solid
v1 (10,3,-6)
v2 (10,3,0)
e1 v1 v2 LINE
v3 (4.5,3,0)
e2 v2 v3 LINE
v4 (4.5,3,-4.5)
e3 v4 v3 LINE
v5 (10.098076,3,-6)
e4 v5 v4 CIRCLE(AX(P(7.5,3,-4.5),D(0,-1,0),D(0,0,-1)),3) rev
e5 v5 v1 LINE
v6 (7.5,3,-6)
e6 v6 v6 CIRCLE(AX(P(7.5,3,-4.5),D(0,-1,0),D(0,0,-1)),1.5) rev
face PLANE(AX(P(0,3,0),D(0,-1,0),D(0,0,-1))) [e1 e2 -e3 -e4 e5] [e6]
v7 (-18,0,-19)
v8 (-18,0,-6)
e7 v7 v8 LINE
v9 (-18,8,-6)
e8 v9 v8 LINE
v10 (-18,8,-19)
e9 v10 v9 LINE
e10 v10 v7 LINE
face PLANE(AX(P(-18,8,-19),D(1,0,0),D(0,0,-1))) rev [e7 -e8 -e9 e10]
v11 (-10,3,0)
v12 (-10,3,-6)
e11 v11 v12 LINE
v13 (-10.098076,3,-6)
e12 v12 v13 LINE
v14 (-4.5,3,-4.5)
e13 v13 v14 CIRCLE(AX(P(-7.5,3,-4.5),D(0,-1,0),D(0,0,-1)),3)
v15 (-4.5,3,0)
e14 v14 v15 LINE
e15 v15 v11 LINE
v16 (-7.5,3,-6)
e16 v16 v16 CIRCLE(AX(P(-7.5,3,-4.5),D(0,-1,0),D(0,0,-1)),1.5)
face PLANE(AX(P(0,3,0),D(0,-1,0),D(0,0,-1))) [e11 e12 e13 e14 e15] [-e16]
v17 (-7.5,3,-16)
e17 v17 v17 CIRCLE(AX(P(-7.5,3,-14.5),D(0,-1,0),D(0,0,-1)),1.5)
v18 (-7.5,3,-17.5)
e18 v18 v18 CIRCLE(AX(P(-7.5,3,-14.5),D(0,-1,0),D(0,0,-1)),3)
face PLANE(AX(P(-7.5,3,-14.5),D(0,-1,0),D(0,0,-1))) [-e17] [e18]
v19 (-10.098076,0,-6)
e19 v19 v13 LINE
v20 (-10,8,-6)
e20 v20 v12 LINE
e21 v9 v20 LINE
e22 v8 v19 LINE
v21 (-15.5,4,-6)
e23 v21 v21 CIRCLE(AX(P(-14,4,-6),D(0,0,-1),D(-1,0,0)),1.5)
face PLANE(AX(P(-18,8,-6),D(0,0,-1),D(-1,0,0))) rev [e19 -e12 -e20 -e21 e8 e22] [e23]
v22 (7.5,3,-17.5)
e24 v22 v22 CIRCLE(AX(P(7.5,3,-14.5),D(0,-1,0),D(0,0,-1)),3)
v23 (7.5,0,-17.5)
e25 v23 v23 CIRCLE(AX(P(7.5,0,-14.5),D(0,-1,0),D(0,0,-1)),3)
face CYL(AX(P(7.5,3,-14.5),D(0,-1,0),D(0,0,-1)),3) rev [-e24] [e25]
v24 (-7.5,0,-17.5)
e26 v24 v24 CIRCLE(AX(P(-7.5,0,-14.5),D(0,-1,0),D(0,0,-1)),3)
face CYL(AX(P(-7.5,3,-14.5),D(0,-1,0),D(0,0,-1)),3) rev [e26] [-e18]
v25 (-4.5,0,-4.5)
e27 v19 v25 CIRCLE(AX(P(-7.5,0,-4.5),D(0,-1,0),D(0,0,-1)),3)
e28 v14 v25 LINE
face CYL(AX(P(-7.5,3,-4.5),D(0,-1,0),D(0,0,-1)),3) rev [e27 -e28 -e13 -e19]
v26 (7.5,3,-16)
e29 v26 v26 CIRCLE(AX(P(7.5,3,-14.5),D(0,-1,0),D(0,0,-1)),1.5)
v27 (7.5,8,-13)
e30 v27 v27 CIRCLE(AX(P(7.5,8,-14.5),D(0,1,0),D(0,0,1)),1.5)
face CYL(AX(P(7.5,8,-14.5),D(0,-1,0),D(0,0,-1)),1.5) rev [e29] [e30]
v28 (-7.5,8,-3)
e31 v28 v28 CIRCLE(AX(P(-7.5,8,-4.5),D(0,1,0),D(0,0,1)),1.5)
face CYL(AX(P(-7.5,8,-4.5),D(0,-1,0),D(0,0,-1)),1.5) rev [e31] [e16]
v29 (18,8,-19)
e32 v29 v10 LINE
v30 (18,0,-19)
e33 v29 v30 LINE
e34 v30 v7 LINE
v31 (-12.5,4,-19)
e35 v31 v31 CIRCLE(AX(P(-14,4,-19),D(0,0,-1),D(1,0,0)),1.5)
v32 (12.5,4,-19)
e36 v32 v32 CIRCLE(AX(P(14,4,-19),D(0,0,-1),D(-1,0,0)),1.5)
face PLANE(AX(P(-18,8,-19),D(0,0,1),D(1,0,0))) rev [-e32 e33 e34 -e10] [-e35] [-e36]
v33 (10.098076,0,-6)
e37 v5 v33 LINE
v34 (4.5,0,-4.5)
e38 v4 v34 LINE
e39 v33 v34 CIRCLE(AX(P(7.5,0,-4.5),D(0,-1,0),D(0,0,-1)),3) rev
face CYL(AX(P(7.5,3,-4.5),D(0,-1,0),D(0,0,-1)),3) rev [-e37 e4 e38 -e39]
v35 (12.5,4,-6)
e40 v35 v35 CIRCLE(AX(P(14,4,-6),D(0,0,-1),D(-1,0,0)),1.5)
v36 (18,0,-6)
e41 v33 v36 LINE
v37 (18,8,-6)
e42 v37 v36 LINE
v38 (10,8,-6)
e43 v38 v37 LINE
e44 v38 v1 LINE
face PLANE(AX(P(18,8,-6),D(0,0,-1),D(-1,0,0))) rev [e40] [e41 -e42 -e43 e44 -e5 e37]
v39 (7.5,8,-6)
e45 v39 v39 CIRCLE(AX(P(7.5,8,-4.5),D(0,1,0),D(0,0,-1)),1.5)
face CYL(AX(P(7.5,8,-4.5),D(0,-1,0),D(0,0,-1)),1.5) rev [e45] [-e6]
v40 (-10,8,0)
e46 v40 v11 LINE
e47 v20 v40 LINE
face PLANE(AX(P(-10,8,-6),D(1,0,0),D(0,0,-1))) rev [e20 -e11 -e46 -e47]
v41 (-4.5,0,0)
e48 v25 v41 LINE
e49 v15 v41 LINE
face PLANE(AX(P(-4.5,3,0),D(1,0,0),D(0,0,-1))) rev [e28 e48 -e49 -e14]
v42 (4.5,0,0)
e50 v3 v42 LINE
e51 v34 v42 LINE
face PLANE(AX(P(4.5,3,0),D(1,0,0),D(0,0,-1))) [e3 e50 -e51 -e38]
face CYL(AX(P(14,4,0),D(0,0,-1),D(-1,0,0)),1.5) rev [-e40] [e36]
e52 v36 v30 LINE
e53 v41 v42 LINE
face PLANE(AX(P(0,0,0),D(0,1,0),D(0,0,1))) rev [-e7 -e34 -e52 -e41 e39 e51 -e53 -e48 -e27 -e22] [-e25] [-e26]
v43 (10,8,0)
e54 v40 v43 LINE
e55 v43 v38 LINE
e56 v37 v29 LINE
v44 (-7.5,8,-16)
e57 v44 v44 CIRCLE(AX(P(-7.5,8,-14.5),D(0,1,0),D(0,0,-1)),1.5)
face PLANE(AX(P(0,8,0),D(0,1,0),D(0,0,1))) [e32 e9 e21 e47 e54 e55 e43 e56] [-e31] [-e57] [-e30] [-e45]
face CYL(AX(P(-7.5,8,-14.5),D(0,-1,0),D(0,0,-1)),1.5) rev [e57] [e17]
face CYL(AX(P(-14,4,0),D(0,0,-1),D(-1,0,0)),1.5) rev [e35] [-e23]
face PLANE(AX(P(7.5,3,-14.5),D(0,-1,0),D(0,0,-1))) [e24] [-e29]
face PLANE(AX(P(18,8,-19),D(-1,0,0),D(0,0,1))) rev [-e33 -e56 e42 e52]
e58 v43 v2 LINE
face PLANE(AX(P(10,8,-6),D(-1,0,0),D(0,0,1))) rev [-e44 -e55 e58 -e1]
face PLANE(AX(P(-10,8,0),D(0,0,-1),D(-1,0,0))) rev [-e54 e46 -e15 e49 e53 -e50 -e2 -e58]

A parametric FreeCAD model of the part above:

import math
import FreeCAD as App
import Part
import Sketcher
from FreeCAD import Vector


def add_polygon(sketch, points):
    """Adds a closed chain of lines whose ends are joined by coincident constraints."""
    first, n = sketch.GeometryCount, len(points)
    for a, b in zip(points, points[1:] + points[:1]):
        sketch.addGeometry(Part.LineSegment(App.Vector(*a, 0), App.Vector(*b, 0)), False)
    for i in range(n):
        sketch.addConstraint(Sketcher.Constraint("Coincident", first + i, 2, first + (i + 1) % n, 1))

doc = App.newDocument("Part")
params = doc.addObject("Spreadsheet::Sheet", "Params")
for row, (alias, value) in enumerate([
    ("sketch1_diameter", "3 mm"),
    ("sketch1_width", "36 mm"),
    ("sketch1_width2", "8 mm"),
    ("sketch1_height", "13 mm"),
    ("sketch1_height2", "6 mm"),
    ("pad1_length", "8 mm"),
    ("sketch2_diameter", "3 mm"),
    ("sketch3_diameter", "6 mm"),
    ("pocket2_length", "3 mm"),
    ("sketch4_diameter", "3 mm"),
    ("sketch4_radius", "3 mm"),
    ("sketch4_height", "6 mm"),
    ("sketch4_width", "5.5 mm"),
    ("sketch4_height2", "4.5 mm"),
    ("pocket3_length", "3 mm"),
], start=1):
    params.set(f"A{row}", alias)
    params.set(f"B{row}", "=" + value)
    params.setAlias(f"B{row}", alias)

body = doc.addObject("PartDesign::Body", "Body")

sketch1 = body.newObject("Sketcher::SketchObject", "Sketch")
sketch1.AttachmentSupport = (doc.getObject("XZ_Plane"), [""])
sketch1.MapMode = "FlatFace"
add_polygon(sketch1, [(18, -19), (-18, -19), (-18, -6), (-10, -6), (-10, 0), (10, 0), (10, -6), (18, -6)])
sketch1.addGeometry(Part.Circle(Vector(7.5, -4.5, 0), Vector(0, 0, 1), 1.5), False)
sketch1.addGeometry(Part.Circle(Vector(-7.5, -4.5, 0), Vector(0, 0, 1), 1.5), False)
sketch1.addGeometry(Part.Circle(Vector(7.5, -14.5, 0), Vector(0, 0, 1), 1.5), False)
sketch1.addGeometry(Part.Circle(Vector(-7.5, -14.5, 0), Vector(0, 0, 1), 1.5), False)
sketch1.addConstraint([
    Sketcher.Constraint("Horizontal", 0),
    Sketcher.Constraint("Vertical", 1),
    Sketcher.Constraint("Horizontal", 2),
    Sketcher.Constraint("Vertical", 3),
    Sketcher.Constraint("Horizontal", 4),
    Sketcher.Constraint("Vertical", 5),
    Sketcher.Constraint("Horizontal", 6),
    Sketcher.Constraint("Vertical", 7),
    Sketcher.Constraint("Equal", 8, 9),
    Sketcher.Constraint("Equal", 9, 10),
    Sketcher.Constraint("Equal", 10, 11),
    Sketcher.Constraint("Symmetric", 3, 2, 4, 2, -1, 1),
    Sketcher.Constraint("Symmetric", 8, 3, 9, 3, -2),
    Sketcher.Constraint("Symmetric", 10, 3, 11, 3, -2),
    Sketcher.Constraint("Symmetric", 1, 2, 6, 2, -2),
    Sketcher.Constraint("Vertical", 8, 3, 10, 3),
    Sketcher.Constraint("Diameter", 8, 3.0),
    Sketcher.Constraint("DistanceX", 0, 2, 0, 1, 36.0),
    Sketcher.Constraint("DistanceX", 2, 1, 2, 2, 8.0),
    Sketcher.Constraint("DistanceY", 1, 1, 1, 2, 13.0),
    Sketcher.Constraint("DistanceY", 3, 1, 3, 2, 6.0),
    Sketcher.Constraint("DistanceX", 9, 3, 8, 3, 15.0),
    Sketcher.Constraint("DistanceY", 10, 3, 8, 3, 10.0),
    Sketcher.Constraint("DistanceY", 8, 3, -1, 1, 4.5),
])
sketch1.setExpression("Constraints[24]", "Params.sketch1_diameter")
sketch1.setExpression("Constraints[25]", "Params.sketch1_width")
sketch1.setExpression("Constraints[26]", "Params.sketch1_width2")
sketch1.setExpression("Constraints[27]", "Params.sketch1_height")
sketch1.setExpression("Constraints[28]", "Params.sketch1_height2")
pad1 = body.newObject("PartDesign::Pad", "Pad")
pad1.Profile = sketch1
pad1.setExpression("Length", "Params.pad1_length")
pad1.Reversed = True

sketch2 = body.newObject("Sketcher::SketchObject", "Sketch001")
sketch2.AttachmentSupport = (doc.getObject("XY_Plane"), [""])
sketch2.MapMode = "FlatFace"
sketch2.AttachmentOffset = App.Placement(Vector(0, 0, -19), App.Rotation())
sketch2.addGeometry([
    Part.Circle(Vector(14, 4, 0), Vector(0, 0, 1), 1.5),
    Part.Circle(Vector(-14, 4, 0), Vector(0, 0, 1), 1.5),
], False)
sketch2.addConstraint([
    Sketcher.Constraint("Equal", 0, 1),
    Sketcher.Constraint("Symmetric", 0, 3, 1, 3, -2),
    Sketcher.Constraint("Diameter", 0, 3.0),
    Sketcher.Constraint("DistanceX", -1, 1, 0, 3, 14.0),
    Sketcher.Constraint("DistanceY", -1, 1, 0, 3, 4.0),
])
sketch2.setExpression("Constraints[2]", "Params.sketch2_diameter")
pocket1 = body.newObject("PartDesign::Pocket", "Pocket")
pocket1.Profile = sketch2
pocket1.Type = "ThroughAll"
pocket1.Reversed = True

sketch3 = body.newObject("Sketcher::SketchObject", "Sketch002")
sketch3.AttachmentSupport = (doc.getObject("XZ_Plane"), [""])
sketch3.MapMode = "FlatFace"
sketch3.addGeometry([
    Part.Circle(Vector(-7.5, -14.5, 0), Vector(0, 0, 1), 3),
    Part.Circle(Vector(7.5, -14.5, 0), Vector(0, 0, 1), 3),
], False)
sketch3.addConstraint([
    Sketcher.Constraint("Equal", 0, 1),
    Sketcher.Constraint("Symmetric", 0, 3, 1, 3, -2),
    Sketcher.Constraint("Diameter", 0, 6.0),
    Sketcher.Constraint("DistanceX", 0, 3, 1, 3, 15.0),
    Sketcher.Constraint("DistanceY", 0, 3, -1, 1, 14.5),
])
sketch3.setExpression("Constraints[2]", "Params.sketch3_diameter")
pocket2 = body.newObject("PartDesign::Pocket", "Pocket001")
pocket2.Profile = sketch3
pocket2.setExpression("Length", "Params.pocket2_length")

sketch4 = body.newObject("Sketcher::SketchObject", "Sketch003")
sketch4.AttachmentSupport = (doc.getObject("XZ_Plane"), [""])
sketch4.MapMode = "FlatFace"
sketch4.addGeometry([
    Part.LineSegment(Vector(-4.5, -4.5, 0), Vector(-4.5, 0, 0)),
    Part.LineSegment(Vector(-4.5, 0, 0), Vector(-10, 0, 0)),
    Part.LineSegment(Vector(-10, 0, 0), Vector(-10, -6, 0)),
    Part.LineSegment(Vector(-10, -6, 0), Vector(-10.1, -6, 0)),
    Part.ArcOfCircle(Part.Circle(Vector(-7.5, -4.5, 0), Vector(0, 0, 1), 3), math.radians(-150), math.radians(0)),
    Part.Circle(Vector(-7.5, -4.5, 0), Vector(0, 0, 1), 1.5),
    Part.ArcOfCircle(Part.Circle(Vector(7.5, -4.5, 0), Vector(0, 0, 1), 3), math.radians(180), math.radians(330)),
    Part.LineSegment(Vector(10.1, -6, 0), Vector(10, -6, 0)),
    Part.LineSegment(Vector(10, -6, 0), Vector(10, 0, 0)),
    Part.LineSegment(Vector(10, 0, 0), Vector(4.5, 0, 0)),
    Part.LineSegment(Vector(4.5, 0, 0), Vector(4.5, -4.5, 0)),
    Part.Circle(Vector(7.5, -4.5, 0), Vector(0, 0, 1), 1.5),
], False)
sketch4.addConstraint([
    Sketcher.Constraint("Coincident", 0, 2, 1, 1),
    Sketcher.Constraint("Coincident", 1, 2, 2, 1),
    Sketcher.Constraint("Coincident", 2, 2, 3, 1),
    Sketcher.Constraint("Coincident", 3, 2, 4, 1),
    Sketcher.Constraint("Tangent", 4, 2, 0, 1),
    Sketcher.Constraint("Coincident", 6, 2, 7, 1),
    Sketcher.Constraint("Coincident", 7, 2, 8, 1),
    Sketcher.Constraint("Coincident", 8, 2, 9, 1),
    Sketcher.Constraint("Coincident", 9, 2, 10, 1),
    Sketcher.Constraint("Tangent", 10, 2, 6, 1),
    Sketcher.Constraint("Vertical", 0),
    Sketcher.Constraint("Horizontal", 1),
    Sketcher.Constraint("Vertical", 2),
    Sketcher.Constraint("Horizontal", 3),
    Sketcher.Constraint("Horizontal", 7),
    Sketcher.Constraint("Vertical", 8),
    Sketcher.Constraint("Horizontal", 9),
    Sketcher.Constraint("Vertical", 10),
    Sketcher.Constraint("Coincident", 5, 3, 4, 3),
    Sketcher.Constraint("Coincident", 11, 3, 6, 3),
    Sketcher.Constraint("Equal", 4, 6),
    Sketcher.Constraint("Equal", 5, 11),
    Sketcher.Constraint("Symmetric", 1, 2, 8, 2, -1, 1),
    Sketcher.Constraint("Symmetric", 4, 3, 6, 3, -2),
    Sketcher.Constraint("PointOnObject", 0, 2, -1),
    Sketcher.Constraint("Horizontal", 3, 2, 6, 2),
    Sketcher.Constraint("Diameter", 5, 3.0),
    Sketcher.Constraint("Radius", 4, 3.0),
    Sketcher.Constraint("DistanceY", 2, 2, 2, 1, 6.0),
    Sketcher.Constraint("DistanceX", 1, 2, 1, 1, 5.5),
    Sketcher.Constraint("DistanceY", 0, 1, 0, 2, 4.5),
    Sketcher.Constraint("DistanceX", 1, 2, -1, 1, 10.0),
])
sketch4.setExpression("Constraints[26]", "Params.sketch4_diameter")
sketch4.setExpression("Constraints[27]", "Params.sketch4_radius")
sketch4.setExpression("Constraints[28]", "Params.sketch4_height")
sketch4.setExpression("Constraints[29]", "Params.sketch4_width")
sketch4.setExpression("Constraints[30]", "Params.sketch4_height2")
pocket3 = body.newObject("PartDesign::Pocket", "Pocket002")
pocket3.Profile = sketch4
pocket3.setExpression("Length", "Params.pocket3_length")

doc.recompute()
